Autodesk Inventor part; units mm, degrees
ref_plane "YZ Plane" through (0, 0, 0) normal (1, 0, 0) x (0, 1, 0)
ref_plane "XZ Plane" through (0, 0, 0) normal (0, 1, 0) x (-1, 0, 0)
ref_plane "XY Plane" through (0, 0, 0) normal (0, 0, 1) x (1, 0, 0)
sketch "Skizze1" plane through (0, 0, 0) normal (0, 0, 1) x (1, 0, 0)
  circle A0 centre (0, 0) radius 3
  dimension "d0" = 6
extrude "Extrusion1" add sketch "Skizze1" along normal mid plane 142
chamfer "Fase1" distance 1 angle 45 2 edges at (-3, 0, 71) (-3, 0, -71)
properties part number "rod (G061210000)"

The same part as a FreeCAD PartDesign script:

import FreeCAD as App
import Part
import Sketcher
from FreeCAD import Vector


def edges_at(feature, points):
    """Names of the edges that pass closest to the given points."""
    edges = feature.Shape.Edges
    near = lambda p: min(range(len(edges)), key=lambda i: edges[i].distToShape(Part.Vertex(*p))[0])
    return sorted({f"Edge{near(p) + 1}" for p in points})

doc = App.newDocument("Part")
params = doc.addObject("Spreadsheet::Sheet", "Params")
for row, (alias, value) in enumerate([
    ("sketch1_diameter", "6 mm"),
    ("pad1_length", "142 mm"),
    ("chamfer_size", "1 mm"),
], start=1):
    params.set(f"A{row}", alias)
    params.set(f"B{row}", "=" + value)
    params.setAlias(f"B{row}", alias)

body = doc.addObject("PartDesign::Body", "Body")

sketch1 = doc.addObject("Sketcher::SketchObject", "Sketch")
body.addObject(sketch1)
sketch1.AttachmentSupport = (doc.XY_Plane, [""])
sketch1.MapMode = "FlatFace"
sketch1.addGeometry(Part.Circle(Vector(0, 0, 0), Vector(0, 0, 1), 3), False)
sketch1.addConstraint(Sketcher.Constraint("Coincident", 0, 3, -1, 1))
sketch1.addConstraint(Sketcher.Constraint("Diameter", 0, 6.0))
sketch1.setExpression("Constraints[1]", "Params.sketch1_diameter")
pad1 = doc.addObject("PartDesign::Pad", "Pad")
body.addObject(pad1)
pad1.Profile = sketch1
pad1.setExpression("Length", "Params.pad1_length")
pad1.Midplane = True
doc.recompute()

chamfer = doc.addObject("PartDesign::Chamfer", "Chamfer")
body.addObject(chamfer)
chamfer.Base = (pad1, edges_at(pad1, [(-3, 0, 71), (-3, 0, -71)]))
chamfer.setExpression("Size", "Params.chamfer_size")

doc.recompute()
